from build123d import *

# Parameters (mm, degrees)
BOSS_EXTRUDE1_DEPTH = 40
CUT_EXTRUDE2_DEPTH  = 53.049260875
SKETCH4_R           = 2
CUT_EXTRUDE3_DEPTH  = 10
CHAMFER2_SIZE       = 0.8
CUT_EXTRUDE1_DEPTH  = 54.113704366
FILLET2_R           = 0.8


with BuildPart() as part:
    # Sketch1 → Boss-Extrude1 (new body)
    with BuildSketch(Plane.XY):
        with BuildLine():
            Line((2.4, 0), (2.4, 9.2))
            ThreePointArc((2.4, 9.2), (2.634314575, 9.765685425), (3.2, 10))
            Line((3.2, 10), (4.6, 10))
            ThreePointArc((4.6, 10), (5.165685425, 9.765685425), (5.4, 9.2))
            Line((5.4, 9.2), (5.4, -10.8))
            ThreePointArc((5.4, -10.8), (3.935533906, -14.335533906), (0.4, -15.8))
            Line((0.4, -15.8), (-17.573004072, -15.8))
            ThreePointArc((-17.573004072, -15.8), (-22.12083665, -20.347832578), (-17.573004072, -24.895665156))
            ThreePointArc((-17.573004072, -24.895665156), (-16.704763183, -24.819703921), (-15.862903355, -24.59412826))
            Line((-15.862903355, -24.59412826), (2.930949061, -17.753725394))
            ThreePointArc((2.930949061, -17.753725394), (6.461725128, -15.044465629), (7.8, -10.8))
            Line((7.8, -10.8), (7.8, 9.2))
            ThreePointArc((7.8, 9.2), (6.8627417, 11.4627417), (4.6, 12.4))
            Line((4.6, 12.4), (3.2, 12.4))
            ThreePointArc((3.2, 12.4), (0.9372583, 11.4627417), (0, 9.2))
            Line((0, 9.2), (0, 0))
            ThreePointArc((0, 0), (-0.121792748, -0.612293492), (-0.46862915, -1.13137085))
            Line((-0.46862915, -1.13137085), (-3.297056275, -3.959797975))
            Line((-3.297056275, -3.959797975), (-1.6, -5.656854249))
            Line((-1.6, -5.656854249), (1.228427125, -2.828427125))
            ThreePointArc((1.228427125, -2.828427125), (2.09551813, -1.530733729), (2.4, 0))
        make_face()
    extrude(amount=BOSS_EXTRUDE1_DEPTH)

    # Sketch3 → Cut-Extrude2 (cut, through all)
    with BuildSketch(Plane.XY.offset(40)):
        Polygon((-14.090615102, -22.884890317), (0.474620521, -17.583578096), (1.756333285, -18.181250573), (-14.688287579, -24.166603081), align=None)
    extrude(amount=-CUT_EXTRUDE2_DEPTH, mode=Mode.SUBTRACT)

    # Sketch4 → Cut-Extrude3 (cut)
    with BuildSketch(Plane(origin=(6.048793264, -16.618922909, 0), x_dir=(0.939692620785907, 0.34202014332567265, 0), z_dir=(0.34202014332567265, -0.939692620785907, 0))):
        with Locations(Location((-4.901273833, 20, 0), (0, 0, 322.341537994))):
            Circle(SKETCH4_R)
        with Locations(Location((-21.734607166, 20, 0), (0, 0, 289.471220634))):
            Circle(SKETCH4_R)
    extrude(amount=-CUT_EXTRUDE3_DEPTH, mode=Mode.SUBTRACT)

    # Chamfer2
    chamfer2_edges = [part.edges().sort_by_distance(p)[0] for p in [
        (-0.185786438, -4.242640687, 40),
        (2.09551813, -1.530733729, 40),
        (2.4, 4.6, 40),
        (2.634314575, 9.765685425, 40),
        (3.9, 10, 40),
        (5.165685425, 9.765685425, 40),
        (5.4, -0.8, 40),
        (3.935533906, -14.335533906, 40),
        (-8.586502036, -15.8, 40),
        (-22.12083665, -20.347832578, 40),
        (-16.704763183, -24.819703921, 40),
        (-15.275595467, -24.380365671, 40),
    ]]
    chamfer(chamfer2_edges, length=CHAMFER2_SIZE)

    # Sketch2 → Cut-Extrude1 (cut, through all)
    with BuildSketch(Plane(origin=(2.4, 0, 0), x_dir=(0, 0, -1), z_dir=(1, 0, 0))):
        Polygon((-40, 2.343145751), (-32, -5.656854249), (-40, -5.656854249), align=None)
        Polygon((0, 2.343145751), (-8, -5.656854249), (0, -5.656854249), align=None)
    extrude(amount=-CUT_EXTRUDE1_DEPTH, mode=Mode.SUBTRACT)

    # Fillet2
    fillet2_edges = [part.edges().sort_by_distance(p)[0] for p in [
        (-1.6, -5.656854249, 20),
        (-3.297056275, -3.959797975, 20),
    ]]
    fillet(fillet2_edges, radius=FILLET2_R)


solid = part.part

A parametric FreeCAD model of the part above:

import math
import FreeCAD as App
import Part
import Sketcher
Q = App.Units.Quantity


def edges_at(feature, points):
    """Names of the edges that pass closest to the given points."""
    edges = feature.Shape.Edges
    near = lambda p: min(range(len(edges)), key=lambda i: edges[i].distToShape(Part.Vertex(*p))[0])
    return sorted({f"Edge{near(p) + 1}" for p in points})

doc = App.newDocument("Part")
body = doc.addObject("PartDesign::Body", "Body")

# Sketch on XY plane
sketch1 = doc.addObject("Sketcher::SketchObject", "Sketch")
body.addObject(sketch1)
sketch1.AttachmentSupport = (doc.XY_Plane, [""])
sketch1.MapMode = "FlatFace"
sketch1.addGeometry([
    Part.LineSegment(App.Vector(2.4, 0, 0), App.Vector(2.4, 9.2, 0)),  # 0
    Part.ArcOfCircle(Part.Circle(App.Vector(3.2, 9.2, 0), App.Vector(0, 0, 1), 0.8), math.radians(90), math.radians(180)),  # 1
    Part.LineSegment(App.Vector(3.2, 10, 0), App.Vector(4.6, 10, 0)),  # 2
    Part.ArcOfCircle(Part.Circle(App.Vector(4.6, 9.2, 0), App.Vector(0, 0, 1), 0.8), math.radians(0), math.radians(90)),  # 3
    Part.LineSegment(App.Vector(5.4, 9.2, 0), App.Vector(5.4, -10.8, 0)),  # 4
    Part.ArcOfCircle(Part.Circle(App.Vector(0.4, -10.8, 0), App.Vector(0, 0, 1), 5), math.radians(-90), math.radians(0)),  # 5
    Part.LineSegment(App.Vector(0.4, -15.8, 0), App.Vector(-17.6, -15.8, 0)),  # 6
    Part.ArcOfCircle(Part.Circle(App.Vector(-17.6, -20.3, 0), App.Vector(0, 0, 1), 4.5), math.radians(90), math.radians(270)),  # 7
    Part.ArcOfCircle(Part.Circle(App.Vector(-17.6, -19.9, 0), App.Vector(0, 0, 1), 5), math.radians(-90), math.radians(-70)),  # 8
    Part.LineSegment(App.Vector(-15.9, -24.6, 0), App.Vector(2.9, -17.8, 0)),  # 9
    Part.ArcOfCircle(Part.Circle(App.Vector(0.4, -10.8, 0), App.Vector(0, 0, 1), 7.4), math.radians(-70), math.radians(0)),  # 10
    Part.LineSegment(App.Vector(7.8, -10.8, 0), App.Vector(7.8, 9.2, 0)),  # 11
    Part.ArcOfCircle(Part.Circle(App.Vector(4.6, 9.2, 0), App.Vector(0, 0, 1), 3.2), math.radians(0), math.radians(90)),  # 12
    Part.LineSegment(App.Vector(4.6, 12.4, 0), App.Vector(3.2, 12.4, 0)),  # 13
    Part.ArcOfCircle(Part.Circle(App.Vector(3.2, 9.2, 0), App.Vector(0, 0, 1), 3.2), math.radians(90), math.radians(180)),  # 14
    Part.LineSegment(App.Vector(0, 9.2, 0), App.Vector(0, 0, 0)),  # 15
    Part.ArcOfCircle(Part.Circle(App.Vector(-1.6, 0, 0), App.Vector(0, 0, 1), 1.6), math.radians(-45), math.radians(0)),  # 16
    Part.LineSegment(App.Vector(-0.5, -1.1, 0), App.Vector(-3.3, -4, 0)),  # 17
    Part.LineSegment(App.Vector(-3.3, -4, 0), App.Vector(-1.6, -5.7, 0)),  # 18
    Part.LineSegment(App.Vector(-1.6, -5.7, 0), App.Vector(1.2, -2.8, 0)),  # 19
    Part.ArcOfCircle(Part.Circle(App.Vector(-1.6, 0, 0), App.Vector(0, 0, 1), 4), math.radians(-45), math.radians(0)),  # 20
], False)
sketch1.addConstraint([
    Sketcher.Constraint("Tangent", 0, 2, 1, 2),
    Sketcher.Constraint("Tangent", 1, 1, 2, 1),
    Sketcher.Constraint("Tangent", 2, 2, 3, 2),
    Sketcher.Constraint("Tangent", 3, 1, 4, 1),
    Sketcher.Constraint("Tangent", 4, 2, 5, 2),
    Sketcher.Constraint("Tangent", 5, 1, 6, 1),
    Sketcher.Constraint("Tangent", 6, 2, 7, 1),
    Sketcher.Constraint("Tangent", 7, 2, 8, 1),
    Sketcher.Constraint("Tangent", 8, 2, 9, 1),
    Sketcher.Constraint("Tangent", 9, 2, 10, 1),
    Sketcher.Constraint("Tangent", 10, 2, 11, 1),
    Sketcher.Constraint("Tangent", 11, 2, 12, 1),
    Sketcher.Constraint("Tangent", 12, 2, 13, 1),
    Sketcher.Constraint("Tangent", 13, 2, 14, 1),
    Sketcher.Constraint("Tangent", 14, 2, 15, 1),
    Sketcher.Constraint("Tangent", 15, 2, 16, 2),
    Sketcher.Constraint("Tangent", 16, 1, 17, 1),
    Sketcher.Constraint("Coincident", 17, 2, 18, 1),
    Sketcher.Constraint("Coincident", 18, 2, 19, 1),
    Sketcher.Constraint("Tangent", 19, 2, 20, 1),
    Sketcher.Constraint("Tangent", 20, 2, 0, 1),
    Sketcher.Constraint("Vertical", 0),
    Sketcher.Constraint("Horizontal", 2),
    Sketcher.Constraint("Vertical", 4),
    Sketcher.Constraint("Horizontal", 6),
    Sketcher.Constraint("Vertical", 11),
    Sketcher.Constraint("Horizontal", 13),
    Sketcher.Constraint("Vertical", 15),
    Sketcher.Constraint("Coincident", 15, 2, -1, 1),
    Sketcher.Constraint("Coincident", 10, 3, 5, 3),
    Sketcher.Constraint("Coincident", 12, 3, 3, 3),
    Sketcher.Constraint("Coincident", 14, 3, 1, 3),
    Sketcher.Constraint("Coincident", 20, 3, 16, 3),
    Sketcher.Constraint("Equal", 1, 3),
    Sketcher.Constraint("Equal", 5, 8),
    Sketcher.Constraint("Perpendicular", 17, 18),
    Sketcher.Constraint("Perpendicular", 18, 19),
    Sketcher.Constraint("Vertical", 7, 3, 8, 3),
    Sketcher.Constraint("Vertical", 20, 3, 18, 2),
    Sketcher.Constraint("Radius", 5, Q("5 mm")),
    Sketcher.Constraint("Radius", 20, Q("4 mm")),
    Sketcher.Constraint("Radius", 1, Q("0.8 mm")),
    Sketcher.Constraint("Radius", 10, Q("7.4 mm")),
    Sketcher.Constraint("DistanceY", 4, 2, 4, 1, Q("20 mm")),
    Sketcher.Constraint("Angle", 9, Q("20 deg")),
    Sketcher.Constraint("Angle", 17, Q("-135 deg")),
    Sketcher.Constraint("Distance", 9, Q("20 mm")),
    Sketcher.Constraint("DistanceX", 2, 1, 2, 2, Q("1.4 mm")),
    Sketcher.Constraint("DistanceY", 0, 1, 0, 2, Q("9.2 mm")),
])
pad1 = doc.addObject("PartDesign::Pad", "Pad")
body.addObject(pad1)
pad1.Profile = sketch1
pad1.Length = 40

# Sketch on XY plane
sketch2 = doc.addObject("Sketcher::SketchObject", "Sketch001")
body.addObject(sketch2)
sketch2.AttachmentSupport = (doc.XY_Plane, [""])
sketch2.MapMode = "FlatFace"
sketch2.AttachmentOffset = App.Placement(App.Vector(0, 0, 40), App.Rotation())
sketch2.addGeometry([
    Part.LineSegment(App.Vector(0.5, -17.6, 0), App.Vector(-14.1, -22.9, 0)),
    Part.LineSegment(App.Vector(-14.1, -22.9, 0), App.Vector(-14.7, -24.2, 0)),
    Part.LineSegment(App.Vector(-14.7, -24.2, 0), App.Vector(1.8, -18.2, 0)),
    Part.LineSegment(App.Vector(1.8, -18.2, 0), App.Vector(0.5, -17.6, 0)),
], False)
sketch2.addConstraint([
    Sketcher.Constraint("Coincident", 0, 2, 1, 1),
    Sketcher.Constraint("Coincident", 1, 2, 2, 1),
    Sketcher.Constraint("Coincident", 2, 2, 3, 1),
    Sketcher.Constraint("Coincident", 3, 2, 0, 1),
    Sketcher.Constraint("Parallel", 0, 2),
    Sketcher.Constraint("Perpendicular", 1, 3),
    Sketcher.Constraint("Equal", 1, 3),
    Sketcher.Constraint("Angle", 0, Q("-160 deg")),
    Sketcher.Constraint("Distance", 0, Q("15.5 mm")),
    Sketcher.Constraint("Distance", 2, Q("17.5 mm")),
    Sketcher.Constraint("DistanceY", 0, 2, -1, 1, Q("22.88489 mm")),
    Sketcher.Constraint("DistanceX", -1, 1, 3, 2, Q("0.474621 mm")),
])
pocket1 = doc.addObject("PartDesign::Pocket", "Pocket")
body.addObject(pocket1)
pocket1.Profile = sketch2
pocket1.Type = "ThroughAll"

# Sketch on an angled plane
sketch3 = doc.addObject("Sketcher::SketchObject", "Sketch002")
body.addObject(sketch3)
sketch3.Placement = App.Placement(App.Vector(6.048793, -16.618923, 0), App.Rotation(App.Vector(0.939692621, 0.342020143, 0), App.Vector(0, 0, 1), App.Vector(0.342020143, -0.939692621, 0), "ZXY"))
sketch3.addGeometry([
    Part.Circle(App.Vector(-4.9, 20, 0), App.Vector(0, 0, 1), 2),
    Part.Circle(App.Vector(-21.7, 20, 0), App.Vector(0, 0, 1), 2),
], False)
sketch3.addConstraint([
    Sketcher.Constraint("Equal", 0, 1),
    Sketcher.Constraint("Horizontal", 0, 3, 1, 3),
    Sketcher.Constraint("Diameter", 0, Q("4 mm")),
    Sketcher.Constraint("DistanceY", -1, 1, 0, 3, Q("20 mm")),
    Sketcher.Constraint("DistanceX", 0, 3, -1, 1, Q("4.901274 mm")),
    Sketcher.Constraint("DistanceX", 1, 3, -1, 1, Q("21.734607 mm")),
])
pocket2 = doc.addObject("PartDesign::Pocket", "Pocket001")
body.addObject(pocket2)
pocket2.Profile = sketch3
pocket2.Length = 10
doc.recompute()

chamfer = doc.addObject("PartDesign::Chamfer", "Chamfer")
body.addObject(chamfer)
chamfer.Base = (pocket2, edges_at(pocket2, [
    (-0.186, -4.243, 40),
    (2.096, -1.531, 40),
    (2.4, 4.6, 40),
    (2.634, 9.766, 40),
    (3.9, 10, 40),
    (5.166, 9.766, 40),
    (5.4, -0.8, 40),
    (3.936, -14.336, 40),
    (-8.587, -15.8, 40),
    (-22.121, -20.348, 40),
    (-16.705, -24.82, 40),
    (-15.276, -24.38, 40),
]))
chamfer.Size = 0.8

# Sketch on YZ plane
sketch4 = doc.addObject("Sketcher::SketchObject", "Sketch003")
body.addObject(sketch4)
sketch4.AttachmentSupport = (doc.YZ_Plane, [""])
sketch4.MapMode = "FlatFace"
sketch4.AttachmentOffset = App.Placement(App.Vector(0, 0, 2.4), App.Rotation())
sketch4.addGeometry([
    Part.LineSegment(App.Vector(-6, 32, 0), App.Vector(2, 40, 0)),  # 0
    Part.LineSegment(App.Vector(2, 40, 0), App.Vector(-6, 40, 0)),  # 1
    Part.LineSegment(App.Vector(-6, 40, 0), App.Vector(-6, 32, 0)),  # 2
    Part.LineSegment(App.Vector(2, 0, 0), App.Vector(-6, 8, 0)),  # 3
    Part.LineSegment(App.Vector(-6, 8, 0), App.Vector(-6, 0, 0)),  # 4
    Part.LineSegment(App.Vector(-6, 0, 0), App.Vector(2, 0, 0)),  # 5
], False)
sketch4.addConstraint([
    Sketcher.Constraint("Coincident", 0, 2, 1, 1),
    Sketcher.Constraint("Coincident", 1, 2, 2, 1),
    Sketcher.Constraint("Coincident", 2, 2, 0, 1),
    Sketcher.Constraint("Coincident", 3, 2, 4, 1),
    Sketcher.Constraint("Coincident", 4, 2, 5, 1),
    Sketcher.Constraint("Coincident", 5, 2, 3, 1),
    Sketcher.Constraint("Horizontal", 1),
    Sketcher.Constraint("Vertical", 2),
    Sketcher.Constraint("Vertical", 4),
    Sketcher.Constraint("Horizontal", 5),
    Sketcher.Constraint("PointOnObject", 4, 2, -1),
    Sketcher.Constraint("Perpendicular", 0, 3),
    Sketcher.Constraint("Vertical", 2, 2, 3, 2),
    Sketcher.Constraint("Vertical", 0, 2, 5, 2),
    Sketcher.Constraint("Equal", 5, 2),
    Sketcher.Constraint("DistanceX", 1, 2, 1, 1, Q("8 mm")),
    Sketcher.Constraint("DistanceY", -1, 1, 0, 2, Q("40 mm")),
    Sketcher.Constraint("DistanceX", -1, 1, 0, 2, Q("2.343146 mm")),
])
pocket3 = doc.addObject("PartDesign::Pocket", "Pocket002")
body.addObject(pocket3)
pocket3.Profile = sketch4
pocket3.Type = "ThroughAll"
doc.recompute()

fillet = doc.addObject("PartDesign::Fillet", "Fillet")
body.addObject(fillet)
fillet.Base = (pocket3, edges_at(pocket3, [(-1.6, -5.657, 20), (-3.297, -3.96, 20)]))
fillet.Radius = 0.8

doc.recompute()
